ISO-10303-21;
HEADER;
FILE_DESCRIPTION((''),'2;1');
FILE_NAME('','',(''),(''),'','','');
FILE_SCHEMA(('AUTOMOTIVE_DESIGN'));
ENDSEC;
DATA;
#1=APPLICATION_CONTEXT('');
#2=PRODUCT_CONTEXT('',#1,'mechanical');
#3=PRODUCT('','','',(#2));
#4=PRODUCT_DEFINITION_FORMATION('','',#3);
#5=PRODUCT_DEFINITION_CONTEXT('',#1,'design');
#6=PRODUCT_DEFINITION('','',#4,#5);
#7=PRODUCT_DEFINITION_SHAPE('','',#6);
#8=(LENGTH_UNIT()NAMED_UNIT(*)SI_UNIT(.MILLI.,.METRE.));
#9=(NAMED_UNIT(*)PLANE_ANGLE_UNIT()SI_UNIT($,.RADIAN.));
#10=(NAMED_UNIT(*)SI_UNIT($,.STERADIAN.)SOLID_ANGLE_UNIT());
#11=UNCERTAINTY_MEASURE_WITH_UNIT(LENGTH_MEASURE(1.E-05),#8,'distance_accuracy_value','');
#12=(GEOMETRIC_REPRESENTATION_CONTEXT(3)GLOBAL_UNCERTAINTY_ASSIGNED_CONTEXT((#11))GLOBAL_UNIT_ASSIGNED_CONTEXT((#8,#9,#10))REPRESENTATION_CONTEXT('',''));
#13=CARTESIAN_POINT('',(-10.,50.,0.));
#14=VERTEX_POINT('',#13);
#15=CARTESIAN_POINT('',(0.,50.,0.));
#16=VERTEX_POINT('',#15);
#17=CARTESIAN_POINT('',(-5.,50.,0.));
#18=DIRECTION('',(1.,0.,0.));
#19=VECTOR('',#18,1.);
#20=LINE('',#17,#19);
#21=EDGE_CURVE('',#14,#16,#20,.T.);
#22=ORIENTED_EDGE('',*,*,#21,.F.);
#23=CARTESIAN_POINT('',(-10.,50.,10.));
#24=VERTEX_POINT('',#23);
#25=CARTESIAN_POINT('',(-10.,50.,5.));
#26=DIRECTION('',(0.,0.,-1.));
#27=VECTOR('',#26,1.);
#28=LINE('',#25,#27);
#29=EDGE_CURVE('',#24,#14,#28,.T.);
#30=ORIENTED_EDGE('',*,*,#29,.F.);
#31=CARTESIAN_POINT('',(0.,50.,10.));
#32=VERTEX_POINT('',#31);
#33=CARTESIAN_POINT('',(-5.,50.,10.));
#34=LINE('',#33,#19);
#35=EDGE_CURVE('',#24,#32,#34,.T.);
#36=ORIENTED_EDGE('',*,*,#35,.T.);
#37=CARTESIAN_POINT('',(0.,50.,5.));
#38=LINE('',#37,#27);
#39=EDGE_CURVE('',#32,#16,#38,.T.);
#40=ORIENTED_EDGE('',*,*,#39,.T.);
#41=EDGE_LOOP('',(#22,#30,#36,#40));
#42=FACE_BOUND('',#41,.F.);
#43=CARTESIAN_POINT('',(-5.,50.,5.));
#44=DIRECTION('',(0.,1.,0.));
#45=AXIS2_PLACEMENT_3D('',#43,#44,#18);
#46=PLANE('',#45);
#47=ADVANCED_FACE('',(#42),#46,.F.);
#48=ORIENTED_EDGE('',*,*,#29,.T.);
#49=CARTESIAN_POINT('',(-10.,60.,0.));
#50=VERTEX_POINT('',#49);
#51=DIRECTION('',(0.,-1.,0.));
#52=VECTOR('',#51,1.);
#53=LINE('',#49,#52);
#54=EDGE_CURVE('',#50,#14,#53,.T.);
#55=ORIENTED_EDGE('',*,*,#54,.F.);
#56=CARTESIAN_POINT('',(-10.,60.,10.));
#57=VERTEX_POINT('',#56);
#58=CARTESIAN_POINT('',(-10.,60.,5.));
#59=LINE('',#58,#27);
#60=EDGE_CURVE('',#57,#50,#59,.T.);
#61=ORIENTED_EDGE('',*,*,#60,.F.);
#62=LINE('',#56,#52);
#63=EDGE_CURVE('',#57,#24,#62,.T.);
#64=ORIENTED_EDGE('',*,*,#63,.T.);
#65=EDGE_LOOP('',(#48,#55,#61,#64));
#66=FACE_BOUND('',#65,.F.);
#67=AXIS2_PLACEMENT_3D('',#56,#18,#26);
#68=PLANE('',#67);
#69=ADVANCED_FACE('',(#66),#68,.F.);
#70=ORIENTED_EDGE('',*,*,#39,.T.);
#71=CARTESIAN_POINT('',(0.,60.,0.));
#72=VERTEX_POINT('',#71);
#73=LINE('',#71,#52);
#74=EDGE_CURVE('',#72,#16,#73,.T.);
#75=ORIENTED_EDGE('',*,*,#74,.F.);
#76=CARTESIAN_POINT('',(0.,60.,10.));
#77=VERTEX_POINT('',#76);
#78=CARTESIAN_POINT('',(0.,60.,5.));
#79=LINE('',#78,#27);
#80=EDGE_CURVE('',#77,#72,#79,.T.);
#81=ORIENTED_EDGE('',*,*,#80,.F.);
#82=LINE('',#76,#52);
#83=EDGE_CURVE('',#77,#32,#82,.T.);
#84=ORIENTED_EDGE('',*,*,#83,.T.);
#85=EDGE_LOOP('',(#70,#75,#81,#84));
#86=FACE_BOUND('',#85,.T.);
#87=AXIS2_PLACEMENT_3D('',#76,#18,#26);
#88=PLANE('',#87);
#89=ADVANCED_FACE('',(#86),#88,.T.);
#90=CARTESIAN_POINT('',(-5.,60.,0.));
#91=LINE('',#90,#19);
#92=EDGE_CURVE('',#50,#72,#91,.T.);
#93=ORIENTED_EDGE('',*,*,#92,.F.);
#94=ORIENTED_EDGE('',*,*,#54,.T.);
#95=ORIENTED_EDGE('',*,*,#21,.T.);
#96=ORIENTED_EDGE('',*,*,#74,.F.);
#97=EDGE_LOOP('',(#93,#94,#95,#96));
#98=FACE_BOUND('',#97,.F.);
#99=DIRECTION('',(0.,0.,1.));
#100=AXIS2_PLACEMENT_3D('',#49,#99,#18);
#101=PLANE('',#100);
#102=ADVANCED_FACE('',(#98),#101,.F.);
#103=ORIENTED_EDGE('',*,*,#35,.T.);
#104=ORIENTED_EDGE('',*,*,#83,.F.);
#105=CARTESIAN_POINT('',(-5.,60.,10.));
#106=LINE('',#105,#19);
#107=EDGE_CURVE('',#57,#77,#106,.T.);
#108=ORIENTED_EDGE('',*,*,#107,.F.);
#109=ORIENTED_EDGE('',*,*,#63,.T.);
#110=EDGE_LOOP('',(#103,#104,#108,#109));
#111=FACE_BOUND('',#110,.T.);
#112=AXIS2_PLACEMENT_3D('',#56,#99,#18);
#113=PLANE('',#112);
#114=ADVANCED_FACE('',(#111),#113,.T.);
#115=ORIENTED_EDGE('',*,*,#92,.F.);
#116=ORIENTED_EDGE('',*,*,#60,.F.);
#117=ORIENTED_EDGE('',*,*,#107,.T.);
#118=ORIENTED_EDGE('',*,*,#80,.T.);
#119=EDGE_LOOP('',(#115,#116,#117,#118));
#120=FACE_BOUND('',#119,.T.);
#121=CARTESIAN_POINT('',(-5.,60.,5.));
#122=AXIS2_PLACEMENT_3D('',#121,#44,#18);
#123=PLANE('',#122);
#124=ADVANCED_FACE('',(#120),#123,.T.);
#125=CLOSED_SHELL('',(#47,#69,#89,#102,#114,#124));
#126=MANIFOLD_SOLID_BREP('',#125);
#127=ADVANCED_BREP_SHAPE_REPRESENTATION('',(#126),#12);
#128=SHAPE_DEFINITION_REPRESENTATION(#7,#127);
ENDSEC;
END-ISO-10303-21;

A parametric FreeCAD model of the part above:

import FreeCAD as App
import Part
import Sketcher

V = App.Vector
Q = App.Units.Quantity


def add_polygon(sketch, points):
    """Adds a closed chain of lines whose ends are joined by coincident constraints."""
    first, n = sketch.GeometryCount, len(points)
    for a, b in zip(points, points[1:] + points[:1]):
        sketch.addGeometry(Part.LineSegment(App.Vector(*a, 0), App.Vector(*b, 0)), False)
    for i in range(n):
        sketch.addConstraint(Sketcher.Constraint("Coincident", first + i, 2, first + (i + 1) % n, 1))

doc = App.newDocument("Part")
body = doc.addObject("PartDesign::Body", "Body")

sketch1 = body.newObject("Sketcher::SketchObject", "Sketch")
sketch1.AttachmentSupport = (doc.getObject("XZ_Plane"), [""])
sketch1.MapMode = "FlatFace"
sketch1.AttachmentOffset = App.Placement(V(0, 0, -60), App.Rotation())
add_polygon(sketch1, [(-10, 0), (-10, 10), (0, 10), (0, 0)])
sketch1.addConstraint([
    Sketcher.Constraint("Vertical", 0),
    Sketcher.Constraint("Horizontal", 1),
    Sketcher.Constraint("Vertical", 2),
    Sketcher.Constraint("Horizontal", 3),
    Sketcher.Constraint("Coincident", 2, 2, -1, 1),
    Sketcher.Constraint("Equal", 3, 0),
    Sketcher.Constraint("DistanceX", 1, 1, 1, 2, Q("10 mm")),
])
pad1 = body.newObject("PartDesign::Pad", "Pad")
pad1.Profile = sketch1
pad1.Length = 10

doc.recompute()
